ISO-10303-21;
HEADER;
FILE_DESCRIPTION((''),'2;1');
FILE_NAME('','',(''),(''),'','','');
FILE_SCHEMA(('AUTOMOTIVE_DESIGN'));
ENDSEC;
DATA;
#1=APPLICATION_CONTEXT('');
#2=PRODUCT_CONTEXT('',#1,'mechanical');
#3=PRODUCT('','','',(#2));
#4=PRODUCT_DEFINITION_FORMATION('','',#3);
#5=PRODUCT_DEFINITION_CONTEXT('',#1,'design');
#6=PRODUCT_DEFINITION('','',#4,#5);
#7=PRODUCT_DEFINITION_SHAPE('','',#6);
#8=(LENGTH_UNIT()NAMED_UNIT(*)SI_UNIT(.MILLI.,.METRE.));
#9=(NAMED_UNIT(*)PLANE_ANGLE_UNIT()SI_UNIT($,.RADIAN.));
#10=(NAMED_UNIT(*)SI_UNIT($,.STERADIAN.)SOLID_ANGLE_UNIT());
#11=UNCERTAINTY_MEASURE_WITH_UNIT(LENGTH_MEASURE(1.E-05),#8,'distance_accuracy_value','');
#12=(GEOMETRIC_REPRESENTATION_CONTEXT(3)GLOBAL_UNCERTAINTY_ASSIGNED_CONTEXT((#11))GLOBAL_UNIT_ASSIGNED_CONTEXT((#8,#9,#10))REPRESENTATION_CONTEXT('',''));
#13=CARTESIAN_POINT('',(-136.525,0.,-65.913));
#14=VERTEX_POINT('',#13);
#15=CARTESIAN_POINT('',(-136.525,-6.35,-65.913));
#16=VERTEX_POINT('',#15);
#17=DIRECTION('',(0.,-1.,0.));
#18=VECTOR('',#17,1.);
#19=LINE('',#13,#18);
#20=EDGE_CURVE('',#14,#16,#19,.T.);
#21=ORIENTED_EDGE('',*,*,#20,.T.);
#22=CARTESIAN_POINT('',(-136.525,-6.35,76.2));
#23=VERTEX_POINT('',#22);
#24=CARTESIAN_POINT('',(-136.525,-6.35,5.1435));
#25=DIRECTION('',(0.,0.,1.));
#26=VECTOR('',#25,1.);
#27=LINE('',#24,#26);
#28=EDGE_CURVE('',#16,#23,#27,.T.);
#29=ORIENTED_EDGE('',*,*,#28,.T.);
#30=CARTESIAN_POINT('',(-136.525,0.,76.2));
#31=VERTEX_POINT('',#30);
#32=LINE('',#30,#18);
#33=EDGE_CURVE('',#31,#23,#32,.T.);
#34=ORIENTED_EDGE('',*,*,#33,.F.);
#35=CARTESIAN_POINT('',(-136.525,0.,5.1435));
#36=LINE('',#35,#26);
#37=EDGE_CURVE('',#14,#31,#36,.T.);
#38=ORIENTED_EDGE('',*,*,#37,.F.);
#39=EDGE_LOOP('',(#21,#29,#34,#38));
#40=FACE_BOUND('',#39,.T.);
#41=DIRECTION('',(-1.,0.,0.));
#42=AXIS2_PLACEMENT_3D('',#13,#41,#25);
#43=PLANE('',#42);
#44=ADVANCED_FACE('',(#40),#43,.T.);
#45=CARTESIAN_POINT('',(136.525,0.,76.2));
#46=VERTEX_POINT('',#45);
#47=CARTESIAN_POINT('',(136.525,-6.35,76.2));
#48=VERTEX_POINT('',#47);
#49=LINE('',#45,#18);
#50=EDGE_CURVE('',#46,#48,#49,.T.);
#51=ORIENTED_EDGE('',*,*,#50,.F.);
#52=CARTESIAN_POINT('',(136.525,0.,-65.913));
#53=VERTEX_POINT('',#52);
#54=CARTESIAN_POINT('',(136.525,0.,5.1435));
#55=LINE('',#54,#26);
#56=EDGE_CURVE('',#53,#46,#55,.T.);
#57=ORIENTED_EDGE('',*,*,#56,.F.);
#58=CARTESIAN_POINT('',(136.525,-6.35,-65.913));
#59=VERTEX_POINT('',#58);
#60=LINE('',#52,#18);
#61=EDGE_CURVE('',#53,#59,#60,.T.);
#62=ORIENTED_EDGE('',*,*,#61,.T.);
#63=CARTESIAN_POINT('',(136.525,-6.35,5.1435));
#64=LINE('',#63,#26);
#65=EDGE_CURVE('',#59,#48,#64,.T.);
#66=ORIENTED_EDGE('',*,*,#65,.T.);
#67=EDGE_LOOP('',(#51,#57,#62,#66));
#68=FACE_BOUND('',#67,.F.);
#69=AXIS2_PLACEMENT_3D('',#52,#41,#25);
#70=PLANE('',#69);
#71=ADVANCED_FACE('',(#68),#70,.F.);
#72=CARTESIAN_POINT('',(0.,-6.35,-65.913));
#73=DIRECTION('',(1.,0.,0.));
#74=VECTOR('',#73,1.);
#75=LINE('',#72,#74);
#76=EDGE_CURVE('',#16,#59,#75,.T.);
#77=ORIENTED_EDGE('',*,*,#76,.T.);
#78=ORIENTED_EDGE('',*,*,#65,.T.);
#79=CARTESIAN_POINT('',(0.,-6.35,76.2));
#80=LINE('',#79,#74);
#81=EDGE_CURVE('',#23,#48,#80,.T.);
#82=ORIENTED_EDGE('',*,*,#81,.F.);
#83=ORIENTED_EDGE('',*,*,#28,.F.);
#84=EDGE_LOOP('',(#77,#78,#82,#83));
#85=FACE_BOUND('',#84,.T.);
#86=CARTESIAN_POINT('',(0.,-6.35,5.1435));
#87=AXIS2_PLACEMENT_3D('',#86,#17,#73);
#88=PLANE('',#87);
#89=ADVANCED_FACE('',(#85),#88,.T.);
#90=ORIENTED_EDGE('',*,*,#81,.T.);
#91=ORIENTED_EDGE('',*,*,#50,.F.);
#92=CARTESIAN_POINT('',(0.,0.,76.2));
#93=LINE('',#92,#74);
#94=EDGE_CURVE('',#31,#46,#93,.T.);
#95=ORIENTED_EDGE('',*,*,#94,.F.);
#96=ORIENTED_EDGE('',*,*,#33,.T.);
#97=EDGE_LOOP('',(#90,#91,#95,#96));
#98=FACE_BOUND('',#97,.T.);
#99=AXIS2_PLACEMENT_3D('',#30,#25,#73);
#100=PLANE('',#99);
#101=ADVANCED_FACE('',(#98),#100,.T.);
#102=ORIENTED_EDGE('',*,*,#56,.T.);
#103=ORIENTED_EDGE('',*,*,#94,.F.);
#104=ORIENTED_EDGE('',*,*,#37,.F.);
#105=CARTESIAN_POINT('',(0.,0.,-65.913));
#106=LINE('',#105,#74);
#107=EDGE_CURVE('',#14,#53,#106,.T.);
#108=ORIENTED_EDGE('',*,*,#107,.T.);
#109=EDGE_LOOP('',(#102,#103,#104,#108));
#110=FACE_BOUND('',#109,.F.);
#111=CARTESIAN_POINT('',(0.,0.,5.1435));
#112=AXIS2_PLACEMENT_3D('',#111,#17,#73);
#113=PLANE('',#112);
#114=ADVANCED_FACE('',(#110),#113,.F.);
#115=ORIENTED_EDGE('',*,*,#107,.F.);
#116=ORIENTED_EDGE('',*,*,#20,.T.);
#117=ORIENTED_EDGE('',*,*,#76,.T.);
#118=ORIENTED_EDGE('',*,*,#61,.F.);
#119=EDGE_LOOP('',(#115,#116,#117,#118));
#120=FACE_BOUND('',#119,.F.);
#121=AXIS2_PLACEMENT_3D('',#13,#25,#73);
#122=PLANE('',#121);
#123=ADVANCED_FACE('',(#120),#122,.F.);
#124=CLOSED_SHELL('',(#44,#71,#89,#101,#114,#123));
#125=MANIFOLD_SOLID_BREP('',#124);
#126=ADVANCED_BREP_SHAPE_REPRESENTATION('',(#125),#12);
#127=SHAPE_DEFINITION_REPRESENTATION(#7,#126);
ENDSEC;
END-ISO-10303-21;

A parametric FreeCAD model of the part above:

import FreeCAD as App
import Part
import Sketcher
from FreeCAD import Vector
Q = App.Units.Quantity


def add_polygon(sketch, points):
    """Adds a closed chain of lines whose ends are joined by coincident constraints."""
    first, n = sketch.GeometryCount, len(points)
    for a, b in zip(points, points[1:] + points[:1]):
        sketch.addGeometry(Part.LineSegment(App.Vector(*a, 0), App.Vector(*b, 0)), False)
    for i in range(n):
        sketch.addConstraint(Sketcher.Constraint("Coincident", first + i, 2, first + (i + 1) % n, 1))

doc = App.newDocument("Part")
body = doc.addObject("PartDesign::Body", "Body")

# Sketch on XZ plane
sketch1 = body.newObject("Sketcher::SketchObject", "Sketch")
sketch1.AttachmentSupport = (doc.getObject("XZ_Plane"), [""])
sketch1.MapMode = "FlatFace"
add_polygon(sketch1, [(-137, 76), (-137, -66), (137, -66), (137, 76)])  # lines 0-3
sketch1.addConstraint([
    Sketcher.Constraint("Vertical", 0),
    Sketcher.Constraint("Horizontal", 1),
    Sketcher.Constraint("Vertical", 2),
    Sketcher.Constraint("Horizontal", 3),
    Sketcher.Constraint("DistanceY", -1, 1, 2, 2, Q("3 in")),
    Sketcher.Constraint("DistanceX", 1, 1, 1, 2, Q("10.75 in")),
    Sketcher.Constraint("DistanceY", 0, 2, 0, 1, Q("5.595 in")),
    Sketcher.Constraint("DistanceX", 0, 2, -1, 1, Q("5.375 in")),
])
pad1 = body.newObject("PartDesign::Pad", "Pad")
pad1.Profile = sketch1
pad1.Length = Q("0.25 in")

# Sketch on XZ plane
sketch2 = body.newObject("Sketcher::SketchObject", "Sketch001")
sketch2.AttachmentSupport = (doc.getObject("XZ_Plane"), [""])
sketch2.MapMode = "FlatFace"
add_polygon(sketch2, [(-137, 76), (-137, -66), (137, -66), (137, 76)])  # lines 0-3
sketch2.addConstraint([
    Sketcher.Constraint("Vertical", 0),
    Sketcher.Constraint("Horizontal", 1),
    Sketcher.Constraint("Vertical", 2),
    Sketcher.Constraint("Horizontal", 3),
    Sketcher.Constraint("DistanceY", -1, 1, 2, 2, Q("3 in")),
    Sketcher.Constraint("DistanceX", 1, 1, 1, 2, Q("10.75 in")),
    Sketcher.Constraint("DistanceY", 0, 2, 0, 1, Q("5.595 in")),
    Sketcher.Constraint("DistanceX", 0, 2, -1, 1, Q("5.375 in")),
])
pad2 = body.newObject("PartDesign::Pad", "Pad001")
pad2.Profile = sketch2
pad2.Length = Q("0.25 in")

doc.recompute()
